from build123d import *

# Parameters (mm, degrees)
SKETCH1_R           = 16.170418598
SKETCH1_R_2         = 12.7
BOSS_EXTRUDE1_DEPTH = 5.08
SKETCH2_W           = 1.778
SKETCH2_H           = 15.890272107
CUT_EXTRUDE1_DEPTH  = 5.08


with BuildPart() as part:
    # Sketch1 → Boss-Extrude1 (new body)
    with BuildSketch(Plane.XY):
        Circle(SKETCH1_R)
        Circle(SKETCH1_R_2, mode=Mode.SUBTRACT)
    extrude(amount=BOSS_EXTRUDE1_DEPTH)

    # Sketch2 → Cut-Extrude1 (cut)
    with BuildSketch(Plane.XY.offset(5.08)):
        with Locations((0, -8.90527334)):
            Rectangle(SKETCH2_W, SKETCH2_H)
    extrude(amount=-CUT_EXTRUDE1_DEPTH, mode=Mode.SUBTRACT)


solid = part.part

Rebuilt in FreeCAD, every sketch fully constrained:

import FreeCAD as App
import Part
import Sketcher

V = App.Vector
Q = App.Units.Quantity


def add_polygon(sketch, points):
    """Adds a closed chain of lines whose ends are joined by coincident constraints."""
    first, n = sketch.GeometryCount, len(points)
    for a, b in zip(points, points[1:] + points[:1]):
        sketch.addGeometry(Part.LineSegment(App.Vector(*a, 0), App.Vector(*b, 0)), False)
    for i in range(n):
        sketch.addConstraint(Sketcher.Constraint("Coincident", first + i, 2, first + (i + 1) % n, 1))

doc = App.newDocument("Part")
body = doc.addObject("PartDesign::Body", "Body")

sketch1 = body.newObject("Sketcher::SketchObject", "Sketch")
sketch1.AttachmentSupport = (doc.getObject("XY_Plane"), [""])
sketch1.MapMode = "FlatFace"
sketch1.addGeometry(Part.Circle(V(0, 0, 0), V(0, 0, 1), 16), False)
sketch1.addGeometry(Part.Circle(V(0, 0, 0), V(0, 0, 1), 13), False)
sketch1.addConstraint(Sketcher.Constraint("Coincident", 0, 3, -1, 1))
sketch1.addConstraint(Sketcher.Constraint("Coincident", 1, 3, -1, 1))
sketch1.addConstraint(Sketcher.Constraint("Diameter", 1, Q("1 in")))
sketch1.addConstraint(Sketcher.Constraint("Diameter", 0, 32.340837))
pad1 = body.newObject("PartDesign::Pad", "Pad")
pad1.Profile = sketch1
pad1.Length = Q("0.2 in")

sketch2 = body.newObject("Sketcher::SketchObject", "Sketch001")
sketch2.AttachmentSupport = (doc.getObject("XY_Plane"), [""])
sketch2.MapMode = "FlatFace"
sketch2.AttachmentOffset = App.Placement(V(0, 0, 0.2 * 25.4), App.Rotation())
add_polygon(sketch2, [(-0.9, -1), (-0.9, -16.9), (0.9, -16.9), (0.9, -1)])
sketch2.addConstraint(Sketcher.Constraint("Vertical", 0))
sketch2.addConstraint(Sketcher.Constraint("Horizontal", 1))
sketch2.addConstraint(Sketcher.Constraint("Vertical", 2))
sketch2.addConstraint(Sketcher.Constraint("Horizontal", 3))
sketch2.addConstraint(Sketcher.Constraint("DistanceX", 1, 1, 1, 2, Q("0.07 in")))
sketch2.addConstraint(Sketcher.Constraint("DistanceX", 0, 2, -1, 1, Q("0.035 in")))
sketch2.addConstraint(Sketcher.Constraint("DistanceY", 0, 2, 0, 1, 15.890272))
sketch2.addConstraint(Sketcher.Constraint("DistanceY", 0, 2, -1, 1, 16.850409))
pocket1 = body.newObject("PartDesign::Pocket", "Pocket")
pocket1.Profile = sketch2
pocket1.Length = Q("0.2 in")

doc.recompute()
